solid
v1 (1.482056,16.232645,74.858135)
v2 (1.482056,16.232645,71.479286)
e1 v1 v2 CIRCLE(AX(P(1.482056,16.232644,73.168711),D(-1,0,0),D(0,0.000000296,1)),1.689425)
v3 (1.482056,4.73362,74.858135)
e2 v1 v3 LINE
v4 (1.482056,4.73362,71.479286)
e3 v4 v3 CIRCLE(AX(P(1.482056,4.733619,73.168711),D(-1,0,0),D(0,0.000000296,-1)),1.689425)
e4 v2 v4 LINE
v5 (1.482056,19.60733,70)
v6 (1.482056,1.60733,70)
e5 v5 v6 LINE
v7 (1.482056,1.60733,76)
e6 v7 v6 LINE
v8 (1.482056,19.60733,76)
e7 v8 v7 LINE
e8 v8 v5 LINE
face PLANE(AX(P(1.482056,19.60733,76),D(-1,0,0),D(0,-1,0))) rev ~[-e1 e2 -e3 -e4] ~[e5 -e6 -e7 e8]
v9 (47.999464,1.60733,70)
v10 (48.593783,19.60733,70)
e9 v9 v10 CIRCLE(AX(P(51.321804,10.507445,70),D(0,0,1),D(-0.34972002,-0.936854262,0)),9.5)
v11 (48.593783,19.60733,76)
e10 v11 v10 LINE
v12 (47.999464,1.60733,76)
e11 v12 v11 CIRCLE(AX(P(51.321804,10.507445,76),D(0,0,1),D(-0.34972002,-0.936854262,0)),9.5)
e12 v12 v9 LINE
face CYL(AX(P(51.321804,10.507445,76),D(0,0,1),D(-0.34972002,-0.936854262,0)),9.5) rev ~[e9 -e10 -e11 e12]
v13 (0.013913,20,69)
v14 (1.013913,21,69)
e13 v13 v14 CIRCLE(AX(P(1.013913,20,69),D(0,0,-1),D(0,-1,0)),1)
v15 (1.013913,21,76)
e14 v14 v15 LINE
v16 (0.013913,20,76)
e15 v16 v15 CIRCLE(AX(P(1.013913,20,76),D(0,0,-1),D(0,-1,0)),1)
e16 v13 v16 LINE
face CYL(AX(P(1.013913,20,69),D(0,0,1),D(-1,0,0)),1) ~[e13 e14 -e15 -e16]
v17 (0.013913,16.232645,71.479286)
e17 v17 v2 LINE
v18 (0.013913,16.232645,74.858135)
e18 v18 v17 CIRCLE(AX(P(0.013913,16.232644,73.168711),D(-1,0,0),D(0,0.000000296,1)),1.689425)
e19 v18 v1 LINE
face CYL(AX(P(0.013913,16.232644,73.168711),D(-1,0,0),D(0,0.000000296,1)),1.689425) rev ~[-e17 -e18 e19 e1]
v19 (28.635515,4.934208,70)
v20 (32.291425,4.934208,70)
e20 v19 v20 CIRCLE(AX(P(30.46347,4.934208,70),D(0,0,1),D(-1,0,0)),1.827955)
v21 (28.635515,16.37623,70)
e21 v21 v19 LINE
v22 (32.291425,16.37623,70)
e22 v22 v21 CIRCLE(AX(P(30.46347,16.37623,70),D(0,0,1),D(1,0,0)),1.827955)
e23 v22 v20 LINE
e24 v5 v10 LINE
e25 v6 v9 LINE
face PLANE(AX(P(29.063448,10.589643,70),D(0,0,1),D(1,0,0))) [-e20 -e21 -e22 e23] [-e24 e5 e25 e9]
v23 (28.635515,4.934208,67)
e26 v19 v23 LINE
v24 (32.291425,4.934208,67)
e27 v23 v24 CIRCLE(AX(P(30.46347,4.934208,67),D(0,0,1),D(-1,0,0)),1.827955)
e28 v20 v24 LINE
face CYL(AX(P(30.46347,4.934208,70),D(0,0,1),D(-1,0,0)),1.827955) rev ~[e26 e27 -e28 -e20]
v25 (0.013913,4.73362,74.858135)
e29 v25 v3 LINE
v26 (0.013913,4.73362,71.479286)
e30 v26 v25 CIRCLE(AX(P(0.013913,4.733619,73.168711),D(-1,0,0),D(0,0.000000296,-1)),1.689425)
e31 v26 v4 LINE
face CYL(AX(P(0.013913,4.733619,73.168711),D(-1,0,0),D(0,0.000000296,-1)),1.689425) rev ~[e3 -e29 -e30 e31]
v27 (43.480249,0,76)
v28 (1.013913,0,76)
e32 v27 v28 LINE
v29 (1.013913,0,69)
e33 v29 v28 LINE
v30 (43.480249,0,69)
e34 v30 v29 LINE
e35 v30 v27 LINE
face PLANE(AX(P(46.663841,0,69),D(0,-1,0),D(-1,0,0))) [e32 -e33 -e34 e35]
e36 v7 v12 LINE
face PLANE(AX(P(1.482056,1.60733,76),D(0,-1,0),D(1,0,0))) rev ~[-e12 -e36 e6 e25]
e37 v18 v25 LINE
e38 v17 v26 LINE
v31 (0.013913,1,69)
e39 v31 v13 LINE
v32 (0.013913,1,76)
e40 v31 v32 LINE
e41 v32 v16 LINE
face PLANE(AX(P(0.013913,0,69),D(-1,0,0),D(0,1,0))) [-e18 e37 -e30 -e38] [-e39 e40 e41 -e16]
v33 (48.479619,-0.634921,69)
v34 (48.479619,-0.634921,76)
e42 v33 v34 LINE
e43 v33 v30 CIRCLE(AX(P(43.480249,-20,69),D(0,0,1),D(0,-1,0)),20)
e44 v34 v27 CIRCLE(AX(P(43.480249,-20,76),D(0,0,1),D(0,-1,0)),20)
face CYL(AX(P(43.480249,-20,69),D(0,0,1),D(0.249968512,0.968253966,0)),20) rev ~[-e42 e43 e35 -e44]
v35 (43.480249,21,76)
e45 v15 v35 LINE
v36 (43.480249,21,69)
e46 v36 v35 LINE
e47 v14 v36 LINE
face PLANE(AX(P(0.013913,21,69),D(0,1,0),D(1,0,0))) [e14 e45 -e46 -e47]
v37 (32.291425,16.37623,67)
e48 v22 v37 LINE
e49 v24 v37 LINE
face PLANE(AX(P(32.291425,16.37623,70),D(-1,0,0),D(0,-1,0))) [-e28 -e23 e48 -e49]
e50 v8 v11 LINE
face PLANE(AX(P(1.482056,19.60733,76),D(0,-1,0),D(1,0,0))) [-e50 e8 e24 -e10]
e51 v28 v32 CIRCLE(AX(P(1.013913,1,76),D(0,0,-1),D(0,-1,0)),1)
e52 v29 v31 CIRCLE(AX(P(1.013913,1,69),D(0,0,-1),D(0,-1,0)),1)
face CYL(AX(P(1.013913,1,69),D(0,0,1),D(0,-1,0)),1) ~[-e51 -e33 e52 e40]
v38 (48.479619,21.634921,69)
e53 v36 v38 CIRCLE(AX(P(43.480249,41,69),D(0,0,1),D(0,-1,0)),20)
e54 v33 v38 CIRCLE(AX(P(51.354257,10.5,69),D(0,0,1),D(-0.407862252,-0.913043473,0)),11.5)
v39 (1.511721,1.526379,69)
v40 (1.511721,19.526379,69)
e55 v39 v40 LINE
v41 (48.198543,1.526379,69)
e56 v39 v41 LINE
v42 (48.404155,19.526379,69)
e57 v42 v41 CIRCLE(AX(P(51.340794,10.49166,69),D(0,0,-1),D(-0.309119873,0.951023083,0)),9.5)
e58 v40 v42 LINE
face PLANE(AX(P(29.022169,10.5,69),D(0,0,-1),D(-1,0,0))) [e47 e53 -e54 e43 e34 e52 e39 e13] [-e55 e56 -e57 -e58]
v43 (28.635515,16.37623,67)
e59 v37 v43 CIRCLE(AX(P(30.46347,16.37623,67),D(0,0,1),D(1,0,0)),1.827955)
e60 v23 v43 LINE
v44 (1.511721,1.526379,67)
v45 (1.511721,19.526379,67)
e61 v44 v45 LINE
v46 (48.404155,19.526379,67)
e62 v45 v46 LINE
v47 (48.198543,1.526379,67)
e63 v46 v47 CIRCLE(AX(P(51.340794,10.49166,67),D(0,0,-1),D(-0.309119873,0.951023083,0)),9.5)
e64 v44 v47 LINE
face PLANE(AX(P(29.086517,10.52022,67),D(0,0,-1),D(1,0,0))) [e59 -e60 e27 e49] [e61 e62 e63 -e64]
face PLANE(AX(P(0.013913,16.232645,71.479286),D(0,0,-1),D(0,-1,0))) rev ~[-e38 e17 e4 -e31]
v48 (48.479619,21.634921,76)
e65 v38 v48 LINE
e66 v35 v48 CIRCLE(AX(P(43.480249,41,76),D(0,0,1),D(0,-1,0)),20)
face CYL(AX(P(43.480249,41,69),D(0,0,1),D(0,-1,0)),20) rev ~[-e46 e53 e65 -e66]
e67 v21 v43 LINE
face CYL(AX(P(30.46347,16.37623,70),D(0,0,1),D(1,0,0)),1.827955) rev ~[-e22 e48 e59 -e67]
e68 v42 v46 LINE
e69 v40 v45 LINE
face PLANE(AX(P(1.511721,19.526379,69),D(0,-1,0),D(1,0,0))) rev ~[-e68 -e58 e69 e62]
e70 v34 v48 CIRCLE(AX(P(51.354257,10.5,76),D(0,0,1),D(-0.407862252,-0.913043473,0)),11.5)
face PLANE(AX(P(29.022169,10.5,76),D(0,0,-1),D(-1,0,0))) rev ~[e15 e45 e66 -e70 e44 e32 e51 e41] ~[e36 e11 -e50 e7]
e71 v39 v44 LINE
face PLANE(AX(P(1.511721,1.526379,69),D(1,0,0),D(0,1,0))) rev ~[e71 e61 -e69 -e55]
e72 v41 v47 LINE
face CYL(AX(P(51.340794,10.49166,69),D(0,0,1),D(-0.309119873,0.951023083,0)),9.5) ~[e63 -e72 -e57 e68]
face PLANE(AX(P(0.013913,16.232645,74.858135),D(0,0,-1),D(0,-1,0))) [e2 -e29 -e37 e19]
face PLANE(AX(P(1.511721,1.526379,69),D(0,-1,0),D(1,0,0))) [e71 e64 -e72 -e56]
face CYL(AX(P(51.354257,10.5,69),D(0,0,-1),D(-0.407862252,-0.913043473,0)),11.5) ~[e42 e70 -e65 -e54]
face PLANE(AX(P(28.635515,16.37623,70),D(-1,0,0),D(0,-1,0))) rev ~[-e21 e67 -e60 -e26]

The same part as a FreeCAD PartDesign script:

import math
import FreeCAD as App
import Part
import Sketcher


def edges_at(feature, points):
    """Names of the edges that pass closest to the given points."""
    edges = feature.Shape.Edges
    near = lambda p: min(range(len(edges)), key=lambda i: edges[i].distToShape(Part.Vertex(*p))[0])
    return sorted({f"Edge{near(p) + 1}" for p in points})

doc = App.newDocument("Part")
body = doc.addObject("PartDesign::Body", "Body")

sketch1 = body.newObject("Sketcher::SketchObject", "Sketch")
sketch1.AttachmentSupport = (doc.getObject("XY_Plane"), [""])
sketch1.MapMode = "FlatFace"
sketch1.AttachmentOffset = App.Placement(App.Vector(0, 0, 69), App.Rotation())
sketch1.addGeometry(Part.LineSegment(App.Vector(46.663841, 21, 0), App.Vector(0.013913, 21, 0)), False)
sketch1.addGeometry(Part.LineSegment(App.Vector(0.013913, 21, 0), App.Vector(0.013913, 0, 0)), False)
sketch1.addGeometry(Part.LineSegment(App.Vector(0.013913, 0, 0), App.Vector(46.663841, 0, 0)), False)
sketch1.addGeometry(Part.ArcOfCircle(Part.Circle(App.Vector(51.354257, 10.5, 0), App.Vector(0, 0, 1), 11.5), math.radians(-114.070615), math.radians(114.070615)), False)
sketch1.addConstraint(Sketcher.Constraint("Coincident", 0, 2, 1, 1))
sketch1.addConstraint(Sketcher.Constraint("Coincident", 1, 2, 2, 1))
sketch1.addConstraint(Sketcher.Constraint("Coincident", 2, 2, 3, 1))
sketch1.addConstraint(Sketcher.Constraint("Coincident", 3, 2, 0, 1))
sketch1.addConstraint(Sketcher.Constraint("Horizontal", 0))
sketch1.addConstraint(Sketcher.Constraint("Vertical", 1))
sketch1.addConstraint(Sketcher.Constraint("Horizontal", 2))
sketch1.addConstraint(Sketcher.Constraint("PointOnObject", 1, 2, -1))
sketch1.addConstraint(Sketcher.Constraint("Vertical", 2, 2, 3, 2))
sketch1.addConstraint(Sketcher.Constraint("Radius", 3, 11.5))
sketch1.addConstraint(Sketcher.Constraint("DistanceY", 1, 2, 1, 1, 21.0))
sketch1.addConstraint(Sketcher.Constraint("DistanceX", 0, 2, 0, 1, 46.649928))
sketch1.addConstraint(Sketcher.Constraint("DistanceX", -1, 1, 2, 2, 46.663841))
pad1 = body.newObject("PartDesign::Pad", "Pad")
pad1.Profile = sketch1
pad1.Length = 7

sketch2 = body.newObject("Sketcher::SketchObject", "Sketch001")
sketch2.AttachmentSupport = (doc.getObject("XY_Plane"), [""])
sketch2.MapMode = "FlatFace"
sketch2.AttachmentOffset = App.Placement(App.Vector(0, 0, 69), App.Rotation())
sketch2.addGeometry(Part.LineSegment(App.Vector(1.511721, 19.526379, 0), App.Vector(48.404155, 19.526379, 0)), False)
sketch2.addGeometry(Part.ArcOfCircle(Part.Circle(App.Vector(51.340794, 10.49166, 0), App.Vector(0, 0, 1), 9.5), math.radians(-109.315108), math.radians(108.006198)), False)
sketch2.addGeometry(Part.LineSegment(App.Vector(48.198543, 1.526379, 0), App.Vector(1.511721, 1.526379, 0)), False)
sketch2.addGeometry(Part.LineSegment(App.Vector(1.511721, 1.526379, 0), App.Vector(1.511721, 19.526379, 0)), False)
sketch2.addConstraint(Sketcher.Constraint("Coincident", 0, 2, 1, 2))
sketch2.addConstraint(Sketcher.Constraint("Coincident", 1, 1, 2, 1))
sketch2.addConstraint(Sketcher.Constraint("Coincident", 2, 2, 3, 1))
sketch2.addConstraint(Sketcher.Constraint("Coincident", 3, 2, 0, 1))
sketch2.addConstraint(Sketcher.Constraint("Horizontal", 0))
sketch2.addConstraint(Sketcher.Constraint("Horizontal", 2))
sketch2.addConstraint(Sketcher.Constraint("Vertical", 3))
sketch2.addConstraint(Sketcher.Constraint("Radius", 1, 9.5))
sketch2.addConstraint(Sketcher.Constraint("DistanceY", 3, 1, 3, 2, 18.0))
sketch2.addConstraint(Sketcher.Constraint("DistanceX", 0, 1, 0, 2, 46.892434))
sketch2.addConstraint(Sketcher.Constraint("DistanceX", 2, 2, 2, 1, 46.686822))
sketch2.addConstraint(Sketcher.Constraint("DistanceY", -1, 1, 1, 3, 10.49166))
sketch2.addConstraint(Sketcher.Constraint("DistanceX", -1, 1, 2, 2, 1.511721))
pad2 = body.newObject("PartDesign::Pad", "Pad001")
pad2.Profile = sketch2
pad2.Length = 2
pad2.Reversed = True
doc.recompute()

fillet = body.newObject("PartDesign::Fillet", "Fillet")
fillet.Base = (pad2, edges_at(pad2, [(46.664, 21, 72.5)]))
fillet.Radius = 20
doc.recompute()

fillet2 = body.newObject("PartDesign::Fillet", "Fillet001")
fillet2.Base = (fillet, edges_at(fillet, [(46.664, 0, 72.5)]))
fillet2.Radius = 20
doc.recompute()

fillet3 = body.newObject("PartDesign::Fillet", "Fillet002")
fillet3.Base = (fillet2, edges_at(fillet2, [(0.014, 0, 72.5)]))
fillet3.Radius = 1
doc.recompute()

fillet4 = body.newObject("PartDesign::Fillet", "Fillet003")
fillet4.Base = (fillet3, edges_at(fillet3, [(0.014, 21, 72.5)]))
fillet4.Radius = 1

sketch3 = body.newObject("Sketcher::SketchObject", "Sketch002")
sketch3.AttachmentSupport = (doc.getObject("XY_Plane"), [""])
sketch3.MapMode = "FlatFace"
sketch3.AttachmentOffset = App.Placement(App.Vector(0, 0, 76), App.Rotation())
sketch3.addGeometry(Part.LineSegment(App.Vector(1.482056, 1.60733, 0), App.Vector(47.999464, 1.60733, 0)), False)
sketch3.addGeometry(Part.ArcOfCircle(Part.Circle(App.Vector(51.321804, 10.507445, 0), App.Vector(0, 0, 1), 9.5), math.radians(-110.470191), math.radians(106.688013)), False)
sketch3.addGeometry(Part.LineSegment(App.Vector(48.593783, 19.60733, 0), App.Vector(1.482056, 19.60733, 0)), False)
sketch3.addGeometry(Part.LineSegment(App.Vector(1.482056, 19.60733, 0), App.Vector(1.482056, 1.60733, 0)), False)
sketch3.addConstraint(Sketcher.Constraint("Coincident", 0, 2, 1, 1))
sketch3.addConstraint(Sketcher.Constraint("Coincident", 1, 2, 2, 1))
sketch3.addConstraint(Sketcher.Constraint("Coincident", 2, 2, 3, 1))
sketch3.addConstraint(Sketcher.Constraint("Coincident", 3, 2, 0, 1))
sketch3.addConstraint(Sketcher.Constraint("Horizontal", 0))
sketch3.addConstraint(Sketcher.Constraint("Horizontal", 2))
sketch3.addConstraint(Sketcher.Constraint("Vertical", 3))
sketch3.addConstraint(Sketcher.Constraint("Radius", 1, 9.5))
sketch3.addConstraint(Sketcher.Constraint("DistanceY", 3, 2, 3, 1, 18.0))
sketch3.addConstraint(Sketcher.Constraint("DistanceX", 0, 1, 0, 2, 46.517408))
sketch3.addConstraint(Sketcher.Constraint("DistanceX", 2, 2, 2, 1, 47.111727))
sketch3.addConstraint(Sketcher.Constraint("DistanceY", -1, 1, 0, 2, 1.60733))
sketch3.addConstraint(Sketcher.Constraint("DistanceX", -1, 1, 1, 3, 51.321804))
pocket1 = body.newObject("PartDesign::Pocket", "Pocket")
pocket1.Profile = sketch3
pocket1.Length = 6

sketch4 = body.newObject("Sketcher::SketchObject", "Sketch003")
sketch4.AttachmentSupport = (doc.getObject("YZ_Plane"), [""])
sketch4.MapMode = "FlatFace"
sketch4.AttachmentOffset = App.Placement(App.Vector(0, 0, 0.013913), App.Rotation())
sketch4.addGeometry(Part.ArcOfCircle(Part.Circle(App.Vector(16.232644, 73.168711, 0), App.Vector(0, 0, 1), 1.689425), math.radians(-89.999983), math.radians(89.999983)), False)
sketch4.addGeometry(Part.LineSegment(App.Vector(16.232645, 71.479286, 0), App.Vector(4.73362, 71.479286, 0)), False)
sketch4.addGeometry(Part.ArcOfCircle(Part.Circle(App.Vector(4.733619, 73.168711, 0), App.Vector(0, 0, 1), 1.689425), math.radians(89.999983), math.radians(270.000017)), False)
sketch4.addGeometry(Part.LineSegment(App.Vector(4.73362, 74.858135, 0), App.Vector(16.232645, 74.858135, 0)), False)
sketch4.addConstraint(Sketcher.Constraint("Tangent", 0, 1, 1, 1))
sketch4.addConstraint(Sketcher.Constraint("Tangent", 1, 2, 2, 2))
sketch4.addConstraint(Sketcher.Constraint("Tangent", 2, 1, 3, 1))
sketch4.addConstraint(Sketcher.Constraint("Tangent", 3, 2, 0, 2))
sketch4.addConstraint(Sketcher.Constraint("Horizontal", 1))
sketch4.addConstraint(Sketcher.Constraint("Horizontal", 3))
sketch4.addConstraint(Sketcher.Constraint("Radius", 0, 1.689425))
sketch4.addConstraint(Sketcher.Constraint("DistanceX", 1, 2, 1, 1, 11.499025))
sketch4.addConstraint(Sketcher.Constraint("DistanceY", -1, 1, 0, 3, 73.168711))
sketch4.addConstraint(Sketcher.Constraint("DistanceX", -1, 1, 2, 3, 4.733619))
pocket2 = body.newObject("PartDesign::Pocket", "Pocket001")
pocket2.Profile = sketch4
pocket2.Length = 5
pocket2.Reversed = True

sketch5 = body.newObject("Sketcher::SketchObject", "Sketch004")
sketch5.AttachmentSupport = (doc.getObject("XY_Plane"), [""])
sketch5.MapMode = "FlatFace"
sketch5.AttachmentOffset = App.Placement(App.Vector(0, 0, 70), App.Rotation())
sketch5.addGeometry(Part.ArcOfCircle(Part.Circle(App.Vector(30.46347, 16.37623, 0), App.Vector(0, 0, 1), 1.827955), math.radians(0), math.radians(180)), False)
sketch5.addGeometry(Part.LineSegment(App.Vector(28.635515, 16.37623, 0), App.Vector(28.635515, 4.934208, 0)), False)
sketch5.addGeometry(Part.ArcOfCircle(Part.Circle(App.Vector(30.46347, 4.934208, 0), App.Vector(0, 0, 1), 1.827955), math.radians(180), math.radians(360)), False)
sketch5.addGeometry(Part.LineSegment(App.Vector(32.291425, 4.934208, 0), App.Vector(32.291425, 16.37623, 0)), False)
sketch5.addConstraint(Sketcher.Constraint("Tangent", 0, 2, 1, 1))
sketch5.addConstraint(Sketcher.Constraint("Tangent", 1, 2, 2, 1))
sketch5.addConstraint(Sketcher.Constraint("Tangent", 2, 2, 3, 1))
sketch5.addConstraint(Sketcher.Constraint("Tangent", 3, 2, 0, 1))
sketch5.addConstraint(Sketcher.Constraint("Vertical", 1))
sketch5.addConstraint(Sketcher.Constraint("Vertical", 3))
sketch5.addConstraint(Sketcher.Constraint("Radius", 0, 1.827955))
sketch5.addConstraint(Sketcher.Constraint("DistanceY", 1, 2, 1, 1, 11.442022))
sketch5.addConstraint(Sketcher.Constraint("DistanceX", -1, 1, 0, 3, 30.46347))
sketch5.addConstraint(Sketcher.Constraint("DistanceY", -1, 1, 0, 3, 16.37623))
pocket3 = body.newObject("PartDesign::Pocket", "Pocket002")
pocket3.Profile = sketch5
pocket3.Length = 5

doc.recompute()
